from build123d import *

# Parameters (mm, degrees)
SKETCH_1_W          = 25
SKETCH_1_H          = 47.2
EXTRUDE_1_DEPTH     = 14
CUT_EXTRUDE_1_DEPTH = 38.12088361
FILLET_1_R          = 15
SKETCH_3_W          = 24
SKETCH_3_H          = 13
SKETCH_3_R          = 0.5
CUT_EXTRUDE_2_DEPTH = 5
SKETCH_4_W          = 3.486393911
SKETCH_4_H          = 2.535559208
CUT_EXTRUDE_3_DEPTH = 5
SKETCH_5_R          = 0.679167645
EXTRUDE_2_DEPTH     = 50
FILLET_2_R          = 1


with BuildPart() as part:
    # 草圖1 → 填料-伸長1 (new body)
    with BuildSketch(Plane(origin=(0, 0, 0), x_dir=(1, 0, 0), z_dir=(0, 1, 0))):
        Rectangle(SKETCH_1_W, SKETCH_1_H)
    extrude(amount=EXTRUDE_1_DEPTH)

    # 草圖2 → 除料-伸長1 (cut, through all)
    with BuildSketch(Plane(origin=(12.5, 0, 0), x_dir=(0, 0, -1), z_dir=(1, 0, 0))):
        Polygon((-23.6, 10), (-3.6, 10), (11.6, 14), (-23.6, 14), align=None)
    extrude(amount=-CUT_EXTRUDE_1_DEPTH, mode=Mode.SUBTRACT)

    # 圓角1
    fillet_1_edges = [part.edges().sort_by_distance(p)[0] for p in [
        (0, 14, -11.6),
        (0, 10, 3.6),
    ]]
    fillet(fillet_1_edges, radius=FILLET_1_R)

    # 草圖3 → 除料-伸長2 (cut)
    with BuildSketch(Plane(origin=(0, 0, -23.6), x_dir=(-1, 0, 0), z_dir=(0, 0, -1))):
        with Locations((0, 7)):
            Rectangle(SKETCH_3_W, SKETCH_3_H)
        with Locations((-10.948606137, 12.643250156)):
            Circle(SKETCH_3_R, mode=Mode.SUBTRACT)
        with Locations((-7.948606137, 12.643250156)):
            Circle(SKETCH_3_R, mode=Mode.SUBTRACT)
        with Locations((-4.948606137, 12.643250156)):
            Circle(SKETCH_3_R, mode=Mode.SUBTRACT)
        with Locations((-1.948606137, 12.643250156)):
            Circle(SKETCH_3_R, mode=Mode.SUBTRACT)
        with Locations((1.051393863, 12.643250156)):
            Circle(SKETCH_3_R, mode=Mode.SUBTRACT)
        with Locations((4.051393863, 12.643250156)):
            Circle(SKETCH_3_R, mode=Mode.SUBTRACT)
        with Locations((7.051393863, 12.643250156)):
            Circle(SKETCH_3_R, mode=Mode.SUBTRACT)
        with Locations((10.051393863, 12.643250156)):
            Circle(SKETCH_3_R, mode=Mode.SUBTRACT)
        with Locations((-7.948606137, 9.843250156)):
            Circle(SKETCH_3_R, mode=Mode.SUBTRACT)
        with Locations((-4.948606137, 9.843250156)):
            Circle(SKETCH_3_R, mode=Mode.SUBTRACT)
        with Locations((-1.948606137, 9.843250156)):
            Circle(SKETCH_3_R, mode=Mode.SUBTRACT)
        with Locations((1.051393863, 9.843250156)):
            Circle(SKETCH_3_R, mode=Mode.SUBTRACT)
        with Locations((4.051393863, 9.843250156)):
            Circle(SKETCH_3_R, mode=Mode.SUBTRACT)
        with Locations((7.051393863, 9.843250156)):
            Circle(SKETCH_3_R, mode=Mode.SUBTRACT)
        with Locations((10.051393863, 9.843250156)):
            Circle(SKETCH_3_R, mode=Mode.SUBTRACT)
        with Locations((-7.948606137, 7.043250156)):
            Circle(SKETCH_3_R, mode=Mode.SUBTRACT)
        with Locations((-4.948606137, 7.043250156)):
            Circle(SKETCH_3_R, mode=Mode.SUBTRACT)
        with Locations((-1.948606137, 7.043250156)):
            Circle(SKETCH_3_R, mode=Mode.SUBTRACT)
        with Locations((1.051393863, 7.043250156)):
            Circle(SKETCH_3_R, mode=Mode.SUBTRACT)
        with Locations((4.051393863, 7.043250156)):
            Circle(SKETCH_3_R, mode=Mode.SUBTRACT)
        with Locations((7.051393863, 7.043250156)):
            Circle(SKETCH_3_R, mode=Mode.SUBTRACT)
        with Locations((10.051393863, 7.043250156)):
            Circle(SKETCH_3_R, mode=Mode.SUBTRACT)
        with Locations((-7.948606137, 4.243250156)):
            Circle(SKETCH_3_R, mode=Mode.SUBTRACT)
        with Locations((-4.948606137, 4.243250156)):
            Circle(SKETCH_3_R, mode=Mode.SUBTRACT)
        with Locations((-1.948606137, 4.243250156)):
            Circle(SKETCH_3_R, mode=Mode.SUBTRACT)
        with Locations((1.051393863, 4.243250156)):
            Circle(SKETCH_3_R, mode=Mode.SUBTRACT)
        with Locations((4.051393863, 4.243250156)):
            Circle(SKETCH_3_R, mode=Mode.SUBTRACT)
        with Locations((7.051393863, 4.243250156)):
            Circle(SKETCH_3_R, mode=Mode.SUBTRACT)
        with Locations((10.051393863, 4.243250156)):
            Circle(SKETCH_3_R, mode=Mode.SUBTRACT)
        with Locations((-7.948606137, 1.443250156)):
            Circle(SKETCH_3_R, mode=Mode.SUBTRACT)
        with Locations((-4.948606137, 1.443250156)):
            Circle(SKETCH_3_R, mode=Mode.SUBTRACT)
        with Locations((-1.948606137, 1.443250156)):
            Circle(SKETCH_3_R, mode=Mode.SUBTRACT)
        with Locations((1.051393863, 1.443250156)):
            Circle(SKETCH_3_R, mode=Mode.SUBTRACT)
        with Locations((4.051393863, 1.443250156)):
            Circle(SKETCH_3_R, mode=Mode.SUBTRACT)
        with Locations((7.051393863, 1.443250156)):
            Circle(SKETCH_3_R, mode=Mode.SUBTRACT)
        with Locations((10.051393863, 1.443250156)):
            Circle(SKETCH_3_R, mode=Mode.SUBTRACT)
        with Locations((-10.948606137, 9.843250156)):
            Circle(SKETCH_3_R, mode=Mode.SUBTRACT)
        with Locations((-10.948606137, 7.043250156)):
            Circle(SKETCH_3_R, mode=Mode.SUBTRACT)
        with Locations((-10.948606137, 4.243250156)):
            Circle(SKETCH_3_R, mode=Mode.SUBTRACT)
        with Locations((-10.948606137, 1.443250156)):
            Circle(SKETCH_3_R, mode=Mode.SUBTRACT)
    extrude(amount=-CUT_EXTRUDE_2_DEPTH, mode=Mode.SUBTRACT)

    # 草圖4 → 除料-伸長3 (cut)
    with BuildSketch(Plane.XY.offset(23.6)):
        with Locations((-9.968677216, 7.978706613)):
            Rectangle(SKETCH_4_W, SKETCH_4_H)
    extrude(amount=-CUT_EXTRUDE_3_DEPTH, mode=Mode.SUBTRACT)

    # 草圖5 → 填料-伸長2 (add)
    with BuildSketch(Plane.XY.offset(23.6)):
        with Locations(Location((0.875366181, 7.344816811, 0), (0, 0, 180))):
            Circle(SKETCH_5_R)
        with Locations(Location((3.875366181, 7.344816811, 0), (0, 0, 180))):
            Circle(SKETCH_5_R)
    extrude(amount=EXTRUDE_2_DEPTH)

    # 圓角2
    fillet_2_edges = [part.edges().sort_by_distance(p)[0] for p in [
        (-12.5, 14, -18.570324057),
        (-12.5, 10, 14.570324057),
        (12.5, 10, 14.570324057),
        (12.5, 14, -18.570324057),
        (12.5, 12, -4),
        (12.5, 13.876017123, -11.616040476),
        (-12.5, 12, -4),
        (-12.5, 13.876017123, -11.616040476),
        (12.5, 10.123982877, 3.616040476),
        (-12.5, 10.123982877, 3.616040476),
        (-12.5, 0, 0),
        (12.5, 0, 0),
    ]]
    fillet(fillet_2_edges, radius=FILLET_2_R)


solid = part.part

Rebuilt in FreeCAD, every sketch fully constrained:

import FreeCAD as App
import Part
import Sketcher
Q = App.Units.Quantity


def edges_at(feature, points):
    """Names of the edges that pass closest to the given points."""
    edges = feature.Shape.Edges
    near = lambda p: min(range(len(edges)), key=lambda i: edges[i].distToShape(Part.Vertex(*p))[0])
    return sorted({f"Edge{near(p) + 1}" for p in points})


def add_polygon(sketch, points):
    """Adds a closed chain of lines whose ends are joined by coincident constraints."""
    first, n = sketch.GeometryCount, len(points)
    for a, b in zip(points, points[1:] + points[:1]):
        sketch.addGeometry(Part.LineSegment(App.Vector(*a, 0), App.Vector(*b, 0)), False)
    for i in range(n):
        sketch.addConstraint(Sketcher.Constraint("Coincident", first + i, 2, first + (i + 1) % n, 1))

doc = App.newDocument("Part")
body = doc.addObject("PartDesign::Body", "Body")

# Sketch on XZ plane
sketch1 = doc.addObject("Sketcher::SketchObject", "Sketch")
body.addObject(sketch1)
sketch1.AttachmentSupport = (doc.XZ_Plane, [""])
sketch1.MapMode = "FlatFace"
add_polygon(sketch1, [(-12, -24), (-12, 24), (12, 24), (12, -24)])  # lines 0-3
sketch1.addConstraint([
    Sketcher.Constraint("Vertical", 0),
    Sketcher.Constraint("Horizontal", 1),
    Sketcher.Constraint("Vertical", 2),
    Sketcher.Constraint("Horizontal", 3),
    Sketcher.Constraint("Symmetric", 0, 2, 2, 2, -1, 1),
    Sketcher.Constraint("DistanceX", 1, 1, 1, 2, Q("25 mm")),
    Sketcher.Constraint("DistanceY", 0, 1, 0, 2, Q("47.2 mm")),
])
pad1 = doc.addObject("PartDesign::Pad", "Pad")
body.addObject(pad1)
pad1.Profile = sketch1
pad1.Length = 14
pad1.Reversed = True

# Sketch on YZ plane
sketch2 = doc.addObject("Sketcher::SketchObject", "Sketch001")
body.addObject(sketch2)
sketch2.AttachmentSupport = (doc.YZ_Plane, [""])
sketch2.MapMode = "FlatFace"
sketch2.AttachmentOffset = App.Placement(App.Vector(0, 0, 12.5), App.Rotation())
add_polygon(sketch2, [(10, 23.6), (10, 3.6), (14, -11.6), (14, 23.6)])  # lines 0-3
sketch2.addConstraint([
    Sketcher.Constraint("Vertical", 0),
    Sketcher.Constraint("Vertical", 2),
    Sketcher.Constraint("Horizontal", 3),
    Sketcher.Constraint("DistanceX", 3, 2, 3, 1, Q("4 mm")),
    Sketcher.Constraint("DistanceY", 0, 2, 0, 1, Q("20 mm")),
    Sketcher.Constraint("DistanceY", 2, 1, 2, 2, Q("35.2 mm")),
    Sketcher.Constraint("DistanceX", -1, 1, 0, 2, Q("10 mm")),
    Sketcher.Constraint("DistanceY", -1, 1, 0, 2, Q("3.6 mm")),
])
pocket1 = doc.addObject("PartDesign::Pocket", "Pocket")
body.addObject(pocket1)
pocket1.Profile = sketch2
pocket1.Type = "ThroughAll"
doc.recompute()

fillet = doc.addObject("PartDesign::Fillet", "Fillet")
body.addObject(fillet)
fillet.Base = (pocket1, edges_at(pocket1, [(0, 14, -11.6), (0, 10, 3.6)]))
fillet.Radius = 15

# Sketch on XY plane
sketch3 = doc.addObject("Sketcher::SketchObject", "Sketch002")
body.addObject(sketch3)
sketch3.AttachmentSupport = (doc.XY_Plane, [""])
sketch3.MapMode = "FlatFace"
sketch3.AttachmentOffset = App.Placement(App.Vector(0, 0, -23.6), App.Rotation())
add_polygon(sketch3, [(12, 13.5), (12, 0.5), (-12, 0.5), (-12, 13.5)])  # lines 0-3
sketch3.addGeometry(Part.Circle(App.Vector(10.9, 1.4, 0), App.Vector(0, 0, 1), 0.5), False)  # 4
sketch3.addGeometry(Part.Circle(App.Vector(7.9, 1.4, 0), App.Vector(0, 0, 1), 0.5), False)  # 5
sketch3.addGeometry(Part.Circle(App.Vector(4.9, 1.4, 0), App.Vector(0, 0, 1), 0.5), False)  # 6
sketch3.addGeometry(Part.Circle(App.Vector(1.9, 1.4, 0), App.Vector(0, 0, 1), 0.5), False)  # 7
sketch3.addGeometry(Part.Circle(App.Vector(10.9, 4.2, 0), App.Vector(0, 0, 1), 0.5), False)  # 8
sketch3.addGeometry(Part.Circle(App.Vector(7.9, 4.2, 0), App.Vector(0, 0, 1), 0.5), False)  # 9
sketch3.addGeometry(Part.Circle(App.Vector(4.9, 4.2, 0), App.Vector(0, 0, 1), 0.5), False)  # 10
sketch3.addGeometry(Part.Circle(App.Vector(1.9, 4.2, 0), App.Vector(0, 0, 1), 0.5), False)  # 11
sketch3.addGeometry(Part.Circle(App.Vector(-1.1, 1.4, 0), App.Vector(0, 0, 1), 0.5), False)  # 12
sketch3.addGeometry(Part.Circle(App.Vector(-4.1, 1.4, 0), App.Vector(0, 0, 1), 0.5), False)  # 13
sketch3.addGeometry(Part.Circle(App.Vector(-7.1, 1.4, 0), App.Vector(0, 0, 1), 0.5), False)  # 14
sketch3.addGeometry(Part.Circle(App.Vector(-10.1, 1.4, 0), App.Vector(0, 0, 1), 0.5), False)  # 15
sketch3.addGeometry(Part.Circle(App.Vector(-1.1, 4.2, 0), App.Vector(0, 0, 1), 0.5), False)  # 16
sketch3.addGeometry(Part.Circle(App.Vector(-4.1, 4.2, 0), App.Vector(0, 0, 1), 0.5), False)  # 17
sketch3.addGeometry(Part.Circle(App.Vector(-7.1, 4.2, 0), App.Vector(0, 0, 1), 0.5), False)  # 18
sketch3.addGeometry(Part.Circle(App.Vector(-10.1, 4.2, 0), App.Vector(0, 0, 1), 0.5), False)  # 19
sketch3.addGeometry(Part.Circle(App.Vector(10.9, 7, 0), App.Vector(0, 0, 1), 0.5), False)  # 20
sketch3.addGeometry(Part.Circle(App.Vector(7.9, 7, 0), App.Vector(0, 0, 1), 0.5), False)  # 21
sketch3.addGeometry(Part.Circle(App.Vector(10.9, 9.8, 0), App.Vector(0, 0, 1), 0.5), False)  # 22
sketch3.addGeometry(Part.Circle(App.Vector(7.9, 9.8, 0), App.Vector(0, 0, 1), 0.5), False)  # 23
sketch3.addGeometry(Part.Circle(App.Vector(4.9, 7, 0), App.Vector(0, 0, 1), 0.5), False)  # 24
sketch3.addGeometry(Part.Circle(App.Vector(1.9, 7, 0), App.Vector(0, 0, 1), 0.5), False)  # 25
sketch3.addGeometry(Part.Circle(App.Vector(4.9, 9.8, 0), App.Vector(0, 0, 1), 0.5), False)  # 26
sketch3.addGeometry(Part.Circle(App.Vector(1.9, 9.8, 0), App.Vector(0, 0, 1), 0.5), False)  # 27
sketch3.addGeometry(Part.Circle(App.Vector(10.9, 12.6, 0), App.Vector(0, 0, 1), 0.5), False)  # 28
sketch3.addGeometry(Part.Circle(App.Vector(7.9, 12.6, 0), App.Vector(0, 0, 1), 0.5), False)  # 29
sketch3.addGeometry(Part.Circle(App.Vector(4.9, 12.6, 0), App.Vector(0, 0, 1), 0.5), False)  # 30
sketch3.addGeometry(Part.Circle(App.Vector(1.9, 12.6, 0), App.Vector(0, 0, 1), 0.5), False)  # 31
sketch3.addGeometry(Part.Circle(App.Vector(-1.1, 7, 0), App.Vector(0, 0, 1), 0.5), False)  # 32
sketch3.addGeometry(Part.Circle(App.Vector(-4.1, 7, 0), App.Vector(0, 0, 1), 0.5), False)  # 33
sketch3.addGeometry(Part.Circle(App.Vector(-1.1, 9.8, 0), App.Vector(0, 0, 1), 0.5), False)  # 34
sketch3.addGeometry(Part.Circle(App.Vector(-4.1, 9.8, 0), App.Vector(0, 0, 1), 0.5), False)  # 35
sketch3.addGeometry(Part.Circle(App.Vector(-7.1, 7, 0), App.Vector(0, 0, 1), 0.5), False)  # 36
sketch3.addGeometry(Part.Circle(App.Vector(-10.1, 7, 0), App.Vector(0, 0, 1), 0.5), False)  # 37
sketch3.addGeometry(Part.Circle(App.Vector(-7.1, 9.8, 0), App.Vector(0, 0, 1), 0.5), False)  # 38
sketch3.addGeometry(Part.Circle(App.Vector(-10.1, 9.8, 0), App.Vector(0, 0, 1), 0.5), False)  # 39
sketch3.addGeometry(Part.Circle(App.Vector(-1.1, 12.6, 0), App.Vector(0, 0, 1), 0.5), False)  # 40
sketch3.addGeometry(Part.Circle(App.Vector(-4.1, 12.6, 0), App.Vector(0, 0, 1), 0.5), False)  # 41
sketch3.addGeometry(Part.Circle(App.Vector(-7.1, 12.6, 0), App.Vector(0, 0, 1), 0.5), False)  # 42
sketch3.addGeometry(Part.Circle(App.Vector(-10.1, 12.6, 0), App.Vector(0, 0, 1), 0.5), False)  # 43
sketch3.addConstraint([
    Sketcher.Constraint("Vertical", 0),
    Sketcher.Constraint("Horizontal", 1),
    Sketcher.Constraint("Vertical", 2),
    Sketcher.Constraint("Horizontal", 3),
    Sketcher.Constraint("Equal", 4, 5),
    Sketcher.Constraint("Equal", 5, 6),
    Sketcher.Constraint("Equal", 6, 7),
    Sketcher.Constraint("Equal", 7, 8),
    Sketcher.Constraint("Equal", 8, 9),
    Sketcher.Constraint("Equal", 9, 10),
    Sketcher.Constraint("Equal", 10, 11),
    Sketcher.Constraint("Equal", 11, 12),
    Sketcher.Constraint("Equal", 12, 13),
    Sketcher.Constraint("Equal", 13, 14),
    Sketcher.Constraint("Equal", 14, 15),
    Sketcher.Constraint("Equal", 15, 16),
    Sketcher.Constraint("Equal", 16, 17),
    Sketcher.Constraint("Equal", 17, 18),
    Sketcher.Constraint("Equal", 18, 19),
    Sketcher.Constraint("Equal", 19, 20),
    Sketcher.Constraint("Equal", 20, 21),
    Sketcher.Constraint("Equal", 21, 22),
    Sketcher.Constraint("Equal", 22, 23),
    Sketcher.Constraint("Equal", 23, 24),
    Sketcher.Constraint("Equal", 24, 25),
    Sketcher.Constraint("Equal", 25, 26),
    Sketcher.Constraint("Equal", 26, 27),
    Sketcher.Constraint("Equal", 27, 28),
    Sketcher.Constraint("Equal", 28, 29),
    Sketcher.Constraint("Equal", 29, 30),
    Sketcher.Constraint("Equal", 30, 31),
    Sketcher.Constraint("Equal", 31, 32),
    Sketcher.Constraint("Equal", 32, 33),
    Sketcher.Constraint("Equal", 33, 34),
    Sketcher.Constraint("Equal", 34, 35),
    Sketcher.Constraint("Equal", 35, 36),
    Sketcher.Constraint("Equal", 36, 37),
    Sketcher.Constraint("Equal", 37, 38),
    Sketcher.Constraint("Equal", 38, 39),
    Sketcher.Constraint("Equal", 39, 40),
    Sketcher.Constraint("Equal", 40, 41),
    Sketcher.Constraint("Equal", 41, 42),
    Sketcher.Constraint("Equal", 42, 43),
    Sketcher.Constraint("Horizontal", 4, 3, 5, 3),
    Sketcher.Constraint("Horizontal", 5, 3, 6, 3),
    Sketcher.Constraint("Horizontal", 6, 3, 7, 3),
    Sketcher.Constraint("Horizontal", 8, 3, 9, 3),
    Sketcher.Constraint("Horizontal", 9, 3, 10, 3),
    Sketcher.Constraint("Horizontal", 10, 3, 11, 3),
    Sketcher.Constraint("Horizontal", 7, 3, 12, 3),
    Sketcher.Constraint("Horizontal", 12, 3, 13, 3),
    Sketcher.Constraint("Horizontal", 13, 3, 14, 3),
    Sketcher.Constraint("Horizontal", 14, 3, 15, 3),
    Sketcher.Constraint("Horizontal", 11, 3, 16, 3),
    Sketcher.Constraint("Horizontal", 16, 3, 17, 3),
    Sketcher.Constraint("Horizontal", 17, 3, 18, 3),
    Sketcher.Constraint("Horizontal", 18, 3, 19, 3),
    Sketcher.Constraint("Horizontal", 20, 3, 21, 3),
    Sketcher.Constraint("Horizontal", 22, 3, 23, 3),
    Sketcher.Constraint("Horizontal", 21, 3, 24, 3),
    Sketcher.Constraint("Horizontal", 24, 3, 25, 3),
    Sketcher.Constraint("Horizontal", 23, 3, 26, 3),
    Sketcher.Constraint("Horizontal", 26, 3, 27, 3),
    Sketcher.Constraint("Horizontal", 28, 3, 29, 3),
    Sketcher.Constraint("Horizontal", 29, 3, 30, 3),
    Sketcher.Constraint("Horizontal", 30, 3, 31, 3),
    Sketcher.Constraint("Horizontal", 25, 3, 32, 3),
    Sketcher.Constraint("Horizontal", 32, 3, 33, 3),
    Sketcher.Constraint("Horizontal", 27, 3, 34, 3),
    Sketcher.Constraint("Horizontal", 34, 3, 35, 3),
    Sketcher.Constraint("Horizontal", 33, 3, 36, 3),
    Sketcher.Constraint("Horizontal", 36, 3, 37, 3),
    Sketcher.Constraint("Horizontal", 35, 3, 38, 3),
    Sketcher.Constraint("Horizontal", 38, 3, 39, 3),
    Sketcher.Constraint("Horizontal", 31, 3, 40, 3),
    Sketcher.Constraint("Horizontal", 40, 3, 41, 3),
    Sketcher.Constraint("Horizontal", 41, 3, 42, 3),
    Sketcher.Constraint("Horizontal", 42, 3, 43, 3),
    Sketcher.Constraint("Vertical", 4, 3, 8, 3),
    Sketcher.Constraint("Vertical", 5, 3, 9, 3),
    Sketcher.Constraint("Vertical", 6, 3, 10, 3),
    Sketcher.Constraint("Vertical", 7, 3, 11, 3),
    Sketcher.Constraint("Vertical", 12, 3, 16, 3),
    Sketcher.Constraint("Vertical", 13, 3, 17, 3),
    Sketcher.Constraint("Vertical", 14, 3, 18, 3),
    Sketcher.Constraint("Vertical", 15, 3, 19, 3),
    Sketcher.Constraint("Vertical", 8, 3, 20, 3),
    Sketcher.Constraint("Vertical", 9, 3, 21, 3),
    Sketcher.Constraint("Vertical", 20, 3, 22, 3),
    Sketcher.Constraint("Vertical", 21, 3, 23, 3),
    Sketcher.Constraint("Vertical", 10, 3, 24, 3),
    Sketcher.Constraint("Vertical", 11, 3, 25, 3),
    Sketcher.Constraint("Vertical", 24, 3, 26, 3),
    Sketcher.Constraint("Vertical", 25, 3, 27, 3),
    Sketcher.Constraint("Vertical", 22, 3, 28, 3),
    Sketcher.Constraint("Vertical", 23, 3, 29, 3),
    Sketcher.Constraint("Vertical", 26, 3, 30, 3),
    Sketcher.Constraint("Vertical", 27, 3, 31, 3),
    Sketcher.Constraint("Vertical", 16, 3, 32, 3),
    Sketcher.Constraint("Vertical", 17, 3, 33, 3),
    Sketcher.Constraint("Vertical", 32, 3, 34, 3),
    Sketcher.Constraint("Vertical", 33, 3, 35, 3),
    Sketcher.Constraint("Vertical", 18, 3, 36, 3),
    Sketcher.Constraint("Vertical", 19, 3, 37, 3),
    Sketcher.Constraint("Vertical", 36, 3, 38, 3),
    Sketcher.Constraint("Vertical", 37, 3, 39, 3),
    Sketcher.Constraint("Vertical", 34, 3, 40, 3),
    Sketcher.Constraint("Vertical", 35, 3, 41, 3),
    Sketcher.Constraint("Vertical", 38, 3, 42, 3),
    Sketcher.Constraint("Vertical", 39, 3, 43, 3),
    Sketcher.Constraint("Diameter", 4, Q("1 mm")),
    Sketcher.Constraint("DistanceX", 1, 2, 1, 1, Q("24 mm")),
    Sketcher.Constraint("DistanceY", 0, 2, 0, 1, Q("13 mm")),
    Sketcher.Constraint("DistanceX", -1, 1, 0, 2, Q("12 mm")),
    Sketcher.Constraint("DistanceX", 5, 3, 4, 3, Q("3 mm")),
    Sketcher.Constraint("DistanceX", 6, 3, 5, 3, Q("3 mm")),
    Sketcher.Constraint("DistanceX", 7, 3, 6, 3, Q("3 mm")),
    Sketcher.Constraint("DistanceX", 12, 3, 7, 3, Q("3 mm")),
    Sketcher.Constraint("DistanceX", 13, 3, 12, 3, Q("3 mm")),
    Sketcher.Constraint("DistanceX", 14, 3, 13, 3, Q("3 mm")),
    Sketcher.Constraint("DistanceX", 15, 3, 14, 3, Q("3 mm")),
    Sketcher.Constraint("DistanceY", -1, 1, 0, 2, Q("0.5 mm")),
    Sketcher.Constraint("DistanceY", 4, 3, 8, 3, Q("2.8 mm")),
    Sketcher.Constraint("DistanceY", 8, 3, 20, 3, Q("2.8 mm")),
    Sketcher.Constraint("DistanceY", 20, 3, 22, 3, Q("2.8 mm")),
    Sketcher.Constraint("DistanceY", 22, 3, 28, 3, Q("2.8 mm")),
    Sketcher.Constraint("DistanceY", -1, 1, 4, 3, Q("1.44325 mm")),
    Sketcher.Constraint("DistanceX", -1, 1, 4, 3, Q("10.948606 mm")),
])
pocket2 = doc.addObject("PartDesign::Pocket", "Pocket001")
body.addObject(pocket2)
pocket2.Profile = sketch3
pocket2.Length = 5
pocket2.Reversed = True

# Sketch on XY plane
sketch4 = doc.addObject("Sketcher::SketchObject", "Sketch003")
body.addObject(sketch4)
sketch4.AttachmentSupport = (doc.XY_Plane, [""])
sketch4.MapMode = "FlatFace"
sketch4.AttachmentOffset = App.Placement(App.Vector(0, 0, 23.6), App.Rotation())
add_polygon(sketch4, [(-11.7, 9.2), (-11.7, 6.7), (-8.2, 6.7), (-8.2, 9.2)])  # lines 0-3
sketch4.addConstraint([
    Sketcher.Constraint("Vertical", 0),
    Sketcher.Constraint("Horizontal", 1),
    Sketcher.Constraint("Vertical", 2),
    Sketcher.Constraint("Horizontal", 3),
    Sketcher.Constraint("DistanceY", 0, 2, 0, 1, Q("2.535559 mm")),
    Sketcher.Constraint("DistanceX", 1, 1, 1, 2, Q("3.486394 mm")),
    Sketcher.Constraint("DistanceX", 1, 2, -1, 1, Q("8.22548 mm")),
    Sketcher.Constraint("DistanceY", -1, 1, 0, 2, Q("6.710927 mm")),
])
pocket3 = doc.addObject("PartDesign::Pocket", "Pocket002")
body.addObject(pocket3)
pocket3.Profile = sketch4
pocket3.Length = 5

# Sketch on XY plane
sketch5 = doc.addObject("Sketcher::SketchObject", "Sketch004")
body.addObject(sketch5)
sketch5.AttachmentSupport = (doc.XY_Plane, [""])
sketch5.MapMode = "FlatFace"
sketch5.AttachmentOffset = App.Placement(App.Vector(0, 0, 23.6), App.Rotation())
sketch5.addGeometry([
    Part.Circle(App.Vector(0.9, 7.3, 0), App.Vector(0, 0, 1), 0.7),
    Part.Circle(App.Vector(3.9, 7.3, 0), App.Vector(0, 0, 1), 0.7),
], False)
sketch5.addConstraint([
    Sketcher.Constraint("Equal", 0, 1),
    Sketcher.Constraint("Horizontal", 0, 3, 1, 3),
    Sketcher.Constraint("DistanceX", 0, 3, 1, 3, Q("3 mm")),
    Sketcher.Constraint("Diameter", 0, Q("1.358335 mm")),
    Sketcher.Constraint("DistanceX", -1, 1, 0, 3, Q("0.875366 mm")),
    Sketcher.Constraint("DistanceY", -1, 1, 0, 3, Q("7.344817 mm")),
])
pad2 = doc.addObject("PartDesign::Pad", "Pad001")
body.addObject(pad2)
pad2.Profile = sketch5
pad2.Length = 50
doc.recompute()

fillet2 = doc.addObject("PartDesign::Fillet", "Fillet001")
body.addObject(fillet2)
fillet2.Base = (pad2, edges_at(pad2, [
    (-12.5, 14, -18.57),
    (-12.5, 10, 14.57),
    (12.5, 10, 14.57),
    (12.5, 14, -18.57),
    (12.5, 12, -4),
    (12.5, 13.876, -11.616),
    (-12.5, 12, -4),
    (-12.5, 13.876, -11.616),
    (12.5, 10.124, 3.616),
    (-12.5, 10.124, 3.616),
    (-12.5, 0, 0),
    (12.5, 0, 0),
]))
fillet2.Radius = 1

doc.recompute()
